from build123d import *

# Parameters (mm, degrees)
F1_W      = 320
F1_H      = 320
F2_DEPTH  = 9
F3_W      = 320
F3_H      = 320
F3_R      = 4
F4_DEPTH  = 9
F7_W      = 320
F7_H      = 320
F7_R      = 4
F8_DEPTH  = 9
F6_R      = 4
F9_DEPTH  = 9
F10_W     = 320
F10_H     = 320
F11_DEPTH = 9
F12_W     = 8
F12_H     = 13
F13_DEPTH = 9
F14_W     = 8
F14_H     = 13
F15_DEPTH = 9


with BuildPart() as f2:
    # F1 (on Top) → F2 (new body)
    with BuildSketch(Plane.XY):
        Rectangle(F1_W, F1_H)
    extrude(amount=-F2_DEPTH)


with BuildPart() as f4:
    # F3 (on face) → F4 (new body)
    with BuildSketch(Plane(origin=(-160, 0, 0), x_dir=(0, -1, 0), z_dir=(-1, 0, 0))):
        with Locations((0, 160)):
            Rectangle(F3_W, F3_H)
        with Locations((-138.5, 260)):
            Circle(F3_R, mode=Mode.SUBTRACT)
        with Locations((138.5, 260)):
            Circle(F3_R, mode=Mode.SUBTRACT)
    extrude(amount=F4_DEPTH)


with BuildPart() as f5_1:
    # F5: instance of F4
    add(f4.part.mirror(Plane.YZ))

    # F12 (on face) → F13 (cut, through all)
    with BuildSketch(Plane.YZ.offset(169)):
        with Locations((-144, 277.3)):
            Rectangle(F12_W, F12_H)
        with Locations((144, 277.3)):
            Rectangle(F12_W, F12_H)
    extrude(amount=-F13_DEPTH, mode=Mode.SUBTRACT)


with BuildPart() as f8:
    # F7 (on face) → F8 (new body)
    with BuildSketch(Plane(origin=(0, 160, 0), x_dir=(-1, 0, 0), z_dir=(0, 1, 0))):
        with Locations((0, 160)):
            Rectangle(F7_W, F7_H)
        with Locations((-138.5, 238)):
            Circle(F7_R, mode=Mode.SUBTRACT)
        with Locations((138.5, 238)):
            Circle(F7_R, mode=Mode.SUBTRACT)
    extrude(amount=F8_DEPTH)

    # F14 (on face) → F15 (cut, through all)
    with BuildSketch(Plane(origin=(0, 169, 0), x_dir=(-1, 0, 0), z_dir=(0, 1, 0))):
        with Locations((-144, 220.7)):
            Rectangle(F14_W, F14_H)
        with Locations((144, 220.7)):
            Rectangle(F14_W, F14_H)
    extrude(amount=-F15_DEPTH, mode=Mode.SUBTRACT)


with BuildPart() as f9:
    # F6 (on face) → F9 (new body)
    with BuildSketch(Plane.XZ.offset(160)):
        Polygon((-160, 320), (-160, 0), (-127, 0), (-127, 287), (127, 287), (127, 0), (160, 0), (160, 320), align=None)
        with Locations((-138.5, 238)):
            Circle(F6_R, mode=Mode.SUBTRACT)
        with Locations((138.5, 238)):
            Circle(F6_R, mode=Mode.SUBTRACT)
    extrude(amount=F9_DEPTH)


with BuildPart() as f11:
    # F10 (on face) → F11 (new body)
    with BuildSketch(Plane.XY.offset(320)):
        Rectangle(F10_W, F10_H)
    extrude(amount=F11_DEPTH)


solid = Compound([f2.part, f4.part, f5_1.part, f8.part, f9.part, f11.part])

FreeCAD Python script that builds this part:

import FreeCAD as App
import Part
import Sketcher
Q = App.Units.Quantity

doc = App.newDocument("Part")
body = doc.addObject("PartDesign::Body", "Body")

# Sketch on XY plane
sketch1 = doc.addObject("Sketcher::SketchObject", "Sketch")
body.addObject(sketch1)
sketch1.AttachmentSupport = (doc.XY_Plane, [""])
sketch1.MapMode = "FlatFace"
sketch1.addGeometry([
    Part.LineSegment(App.Vector(-160, 160, 0), App.Vector(-160, -160, 0)),
    Part.LineSegment(App.Vector(-160, -160, 0), App.Vector(160, -160, 0)),
    Part.LineSegment(App.Vector(160, -160, 0), App.Vector(160, 160, 0)),
    Part.LineSegment(App.Vector(160, 160, 0), App.Vector(-160, 160, 0)),
], False)
sketch1.addConstraint([
    Sketcher.Constraint("Coincident", 0, 2, 1, 1),
    Sketcher.Constraint("Coincident", 1, 2, 2, 1),
    Sketcher.Constraint("Coincident", 2, 2, 3, 1),
    Sketcher.Constraint("Coincident", 3, 2, 0, 1),
    Sketcher.Constraint("Vertical", 0),
    Sketcher.Constraint("Horizontal", 1),
    Sketcher.Constraint("Vertical", 2),
    Sketcher.Constraint("Horizontal", 3),
    Sketcher.Constraint("Symmetric", 0, 2, 2, 2, -1, 1),
    Sketcher.Constraint("Equal", 3, 0),
    Sketcher.Constraint("DistanceX", 1, 1, 1, 2, Q("320 mm")),
])
pad1 = doc.addObject("PartDesign::Pad", "Pad")
body.addObject(pad1)
pad1.Profile = sketch1
pad1.Length = 9
pad1.Reversed = True
body2 = doc.addObject("PartDesign::Body", "Body001")

# Sketch on YZ plane
sketch2 = doc.addObject("Sketcher::SketchObject", "Sketch001")
body2.addObject(sketch2)
sketch2.AttachmentSupport = (doc.getObject("YZ_Plane001"), [""])
sketch2.MapMode = "FlatFace"
sketch2.AttachmentOffset = App.Placement(App.Vector(0, 0, -160), App.Rotation())
sketch2.addGeometry([
    Part.LineSegment(App.Vector(160, 320, 0), App.Vector(160, 0, 0)),  # 0
    Part.LineSegment(App.Vector(160, 0, 0), App.Vector(-160, 0, 0)),  # 1
    Part.LineSegment(App.Vector(-160, 0, 0), App.Vector(-160, 320, 0)),  # 2
    Part.LineSegment(App.Vector(-160, 320, 0), App.Vector(160, 320, 0)),  # 3
    Part.Circle(App.Vector(138.5, 260, 0), App.Vector(0, 0, 1), 4),  # 4
    Part.Circle(App.Vector(-138.5, 260, 0), App.Vector(0, 0, 1), 4),  # 5
], False)
sketch2.addConstraint([
    Sketcher.Constraint("Coincident", 0, 2, 1, 1),
    Sketcher.Constraint("Coincident", 1, 2, 2, 1),
    Sketcher.Constraint("Coincident", 2, 2, 3, 1),
    Sketcher.Constraint("Coincident", 3, 2, 0, 1),
    Sketcher.Constraint("Vertical", 0),
    Sketcher.Constraint("Horizontal", 1),
    Sketcher.Constraint("Vertical", 2),
    Sketcher.Constraint("Horizontal", 3),
    Sketcher.Constraint("Equal", 4, 5),
    Sketcher.Constraint("Symmetric", 0, 2, 1, 2, -1, 1),
    Sketcher.Constraint("Symmetric", 4, 3, 5, 3, -2),
    Sketcher.Constraint("Equal", 3, 0),
    Sketcher.Constraint("Diameter", 4, Q("8 mm")),
    Sketcher.Constraint("DistanceX", 1, 2, 1, 1, Q("320 mm")),
    Sketcher.Constraint("DistanceY", -1, 1, 4, 3, Q("260 mm")),
    Sketcher.Constraint("DistanceX", 5, 3, 4, 3, Q("277 mm")),
])
pad2 = doc.addObject("PartDesign::Pad", "Pad001")
body2.addObject(pad2)
pad2.Profile = sketch2
pad2.Length = 9
pad2.Reversed = True
body3 = doc.addObject("PartDesign::Body", "Body002")
doc.recompute()

mirroring = doc.addObject("Part::Mirroring", "Mirroring")
mirroring.Source = body2
mirroring.Base = App.Vector(0, 0, 0)
mirroring.Normal = App.Vector(1, 0, 0)
body3.BaseFeature = mirroring
doc.recompute()

# Sketch on YZ plane
sketch3 = doc.addObject("Sketcher::SketchObject", "Sketch002")
body3.addObject(sketch3)
sketch3.AttachmentSupport = (doc.getObject("YZ_Plane002"), [""])
sketch3.MapMode = "FlatFace"
sketch3.AttachmentOffset = App.Placement(App.Vector(0, 0, 169), App.Rotation())
sketch3.addGeometry([
    Part.LineSegment(App.Vector(-148, 284, 0), App.Vector(-148, 271, 0)),  # 0
    Part.LineSegment(App.Vector(-148, 271, 0), App.Vector(-140, 271, 0)),  # 1
    Part.LineSegment(App.Vector(-140, 271, 0), App.Vector(-140, 284, 0)),  # 2
    Part.LineSegment(App.Vector(-140, 284, 0), App.Vector(-148, 284, 0)),  # 3
    Part.LineSegment(App.Vector(140, 284, 0), App.Vector(140, 271, 0)),  # 4
    Part.LineSegment(App.Vector(140, 271, 0), App.Vector(148, 271, 0)),  # 5
    Part.LineSegment(App.Vector(148, 271, 0), App.Vector(148, 284, 0)),  # 6
    Part.LineSegment(App.Vector(148, 284, 0), App.Vector(140, 284, 0)),  # 7
], False)
sketch3.addConstraint([
    Sketcher.Constraint("Coincident", 0, 2, 1, 1),
    Sketcher.Constraint("Coincident", 1, 2, 2, 1),
    Sketcher.Constraint("Coincident", 2, 2, 3, 1),
    Sketcher.Constraint("Coincident", 3, 2, 0, 1),
    Sketcher.Constraint("Coincident", 4, 2, 5, 1),
    Sketcher.Constraint("Coincident", 5, 2, 6, 1),
    Sketcher.Constraint("Coincident", 6, 2, 7, 1),
    Sketcher.Constraint("Coincident", 7, 2, 4, 1),
    Sketcher.Constraint("Vertical", 0),
    Sketcher.Constraint("Horizontal", 1),
    Sketcher.Constraint("Vertical", 2),
    Sketcher.Constraint("Horizontal", 3),
    Sketcher.Constraint("Vertical", 4),
    Sketcher.Constraint("Horizontal", 5),
    Sketcher.Constraint("Vertical", 6),
    Sketcher.Constraint("Horizontal", 7),
    Sketcher.Constraint("Symmetric", 1, 2, 4, 2, -2),
    Sketcher.Constraint("Symmetric", 3, 2, 6, 2, -2),
    Sketcher.Constraint("DistanceX", 1, 1, 1, 2, Q("8 mm")),
    Sketcher.Constraint("DistanceY", 0, 2, 0, 1, Q("13 mm")),
    Sketcher.Constraint("DistanceX", 0, 2, -1, 1, Q("148 mm")),
    Sketcher.Constraint("DistanceY", -1, 1, 0, 2, Q("270.8 mm")),
])
pocket1 = doc.addObject("PartDesign::Pocket", "Pocket")
body3.addObject(pocket1)
pocket1.Profile = sketch3
pocket1.Type = "ThroughAll"
body4 = doc.addObject("PartDesign::Body", "Body003")

# Sketch on XZ plane
sketch4 = doc.addObject("Sketcher::SketchObject", "Sketch003")
body4.addObject(sketch4)
sketch4.AttachmentSupport = (doc.getObject("XZ_Plane003"), [""])
sketch4.MapMode = "FlatFace"
sketch4.AttachmentOffset = App.Placement(App.Vector(0, 0, -160), App.Rotation())
sketch4.addGeometry([
    Part.LineSegment(App.Vector(160, 320, 0), App.Vector(160, 0, 0)),  # 0
    Part.LineSegment(App.Vector(160, 0, 0), App.Vector(-160, 0, 0)),  # 1
    Part.LineSegment(App.Vector(-160, 0, 0), App.Vector(-160, 320, 0)),  # 2
    Part.LineSegment(App.Vector(-160, 320, 0), App.Vector(160, 320, 0)),  # 3
    Part.Circle(App.Vector(138.5, 238, 0), App.Vector(0, 0, 1), 4),  # 4
    Part.Circle(App.Vector(-138.5, 238, 0), App.Vector(0, 0, 1), 4),  # 5
], False)
sketch4.addConstraint([
    Sketcher.Constraint("Coincident", 0, 2, 1, 1),
    Sketcher.Constraint("Coincident", 1, 2, 2, 1),
    Sketcher.Constraint("Coincident", 2, 2, 3, 1),
    Sketcher.Constraint("Coincident", 3, 2, 0, 1),
    Sketcher.Constraint("Vertical", 0),
    Sketcher.Constraint("Horizontal", 1),
    Sketcher.Constraint("Vertical", 2),
    Sketcher.Constraint("Horizontal", 3),
    Sketcher.Constraint("Equal", 4, 5),
    Sketcher.Constraint("Symmetric", 0, 2, 1, 2, -1, 1),
    Sketcher.Constraint("Symmetric", 4, 3, 5, 3, -2),
    Sketcher.Constraint("Equal", 3, 0),
    Sketcher.Constraint("Diameter", 4, Q("8 mm")),
    Sketcher.Constraint("DistanceX", 1, 2, 1, 1, Q("320 mm")),
    Sketcher.Constraint("DistanceY", -1, 1, 4, 3, Q("238 mm")),
    Sketcher.Constraint("DistanceX", 5, 3, 4, 3, Q("277 mm")),
])
pad3 = doc.addObject("PartDesign::Pad", "Pad002")
body4.addObject(pad3)
pad3.Profile = sketch4
pad3.Length = 9
pad3.Reversed = True

# Sketch on XZ plane
sketch5 = doc.addObject("Sketcher::SketchObject", "Sketch004")
body4.addObject(sketch5)
sketch5.AttachmentSupport = (doc.getObject("XZ_Plane003"), [""])
sketch5.MapMode = "FlatFace"
sketch5.AttachmentOffset = App.Placement(App.Vector(0, 0, -169), App.Rotation())
sketch5.addGeometry([
    Part.LineSegment(App.Vector(148, 227, 0), App.Vector(148, 214, 0)),  # 0
    Part.LineSegment(App.Vector(148, 214, 0), App.Vector(140, 214, 0)),  # 1
    Part.LineSegment(App.Vector(140, 214, 0), App.Vector(140, 227, 0)),  # 2
    Part.LineSegment(App.Vector(140, 227, 0), App.Vector(148, 227, 0)),  # 3
    Part.LineSegment(App.Vector(-140, 227, 0), App.Vector(-140, 214, 0)),  # 4
    Part.LineSegment(App.Vector(-140, 214, 0), App.Vector(-148, 214, 0)),  # 5
    Part.LineSegment(App.Vector(-148, 214, 0), App.Vector(-148, 227, 0)),  # 6
    Part.LineSegment(App.Vector(-148, 227, 0), App.Vector(-140, 227, 0)),  # 7
], False)
sketch5.addConstraint([
    Sketcher.Constraint("Coincident", 0, 2, 1, 1),
    Sketcher.Constraint("Coincident", 1, 2, 2, 1),
    Sketcher.Constraint("Coincident", 2, 2, 3, 1),
    Sketcher.Constraint("Coincident", 3, 2, 0, 1),
    Sketcher.Constraint("Coincident", 4, 2, 5, 1),
    Sketcher.Constraint("Coincident", 5, 2, 6, 1),
    Sketcher.Constraint("Coincident", 6, 2, 7, 1),
    Sketcher.Constraint("Coincident", 7, 2, 4, 1),
    Sketcher.Constraint("Vertical", 0),
    Sketcher.Constraint("Horizontal", 1),
    Sketcher.Constraint("Vertical", 2),
    Sketcher.Constraint("Horizontal", 3),
    Sketcher.Constraint("Vertical", 4),
    Sketcher.Constraint("Horizontal", 5),
    Sketcher.Constraint("Vertical", 6),
    Sketcher.Constraint("Horizontal", 7),
    Sketcher.Constraint("Symmetric", 1, 2, 4, 2, -2),
    Sketcher.Constraint("Symmetric", 3, 2, 6, 2, -2),
    Sketcher.Constraint("DistanceX", 1, 2, 1, 1, Q("8 mm")),
    Sketcher.Constraint("DistanceY", 0, 2, 0, 1, Q("13 mm")),
    Sketcher.Constraint("DistanceX", -1, 1, 0, 2, Q("148 mm")),
    Sketcher.Constraint("DistanceY", -1, 1, 0, 2, Q("214.2 mm")),
])
pocket2 = doc.addObject("PartDesign::Pocket", "Pocket001")
body4.addObject(pocket2)
pocket2.Profile = sketch5
pocket2.Type = "ThroughAll"
pocket2.Reversed = True
body5 = doc.addObject("PartDesign::Body", "Body004")

# Sketch on XZ plane
sketch6 = doc.addObject("Sketcher::SketchObject", "Sketch005")
body5.addObject(sketch6)
sketch6.AttachmentSupport = (doc.getObject("XZ_Plane004"), [""])
sketch6.MapMode = "FlatFace"
sketch6.AttachmentOffset = App.Placement(App.Vector(0, 0, 160), App.Rotation())
sketch6.addGeometry([
    Part.LineSegment(App.Vector(-160, 320, 0), App.Vector(-160, 0, 0)),  # 0
    Part.LineSegment(App.Vector(-160, 0, 0), App.Vector(-127, 0, 0)),  # 1
    Part.LineSegment(App.Vector(-127, 0, 0), App.Vector(-127, 287, 0)),  # 2
    Part.LineSegment(App.Vector(-127, 287, 0), App.Vector(127, 287, 0)),  # 3
    Part.LineSegment(App.Vector(127, 287, 0), App.Vector(127, 0, 0)),  # 4
    Part.LineSegment(App.Vector(127, 0, 0), App.Vector(160, 0, 0)),  # 5
    Part.LineSegment(App.Vector(160, 0, 0), App.Vector(160, 320, 0)),  # 6
    Part.LineSegment(App.Vector(160, 320, 0), App.Vector(-160, 320, 0)),  # 7
    Part.Circle(App.Vector(-138.5, 238, 0), App.Vector(0, 0, 1), 4),  # 8
    Part.Circle(App.Vector(138.5, 238, 0), App.Vector(0, 0, 1), 4),  # 9
], False)
sketch6.addConstraint([
    Sketcher.Constraint("Coincident", 0, 2, 1, 1),
    Sketcher.Constraint("Coincident", 1, 2, 2, 1),
    Sketcher.Constraint("Coincident", 2, 2, 3, 1),
    Sketcher.Constraint("Coincident", 3, 2, 4, 1),
    Sketcher.Constraint("Coincident", 4, 2, 5, 1),
    Sketcher.Constraint("Coincident", 5, 2, 6, 1),
    Sketcher.Constraint("Coincident", 6, 2, 7, 1),
    Sketcher.Constraint("Coincident", 7, 2, 0, 1),
    Sketcher.Constraint("Vertical", 0),
    Sketcher.Constraint("Horizontal", 1),
    Sketcher.Constraint("Vertical", 2),
    Sketcher.Constraint("Horizontal", 3),
    Sketcher.Constraint("Vertical", 4),
    Sketcher.Constraint("Horizontal", 5),
    Sketcher.Constraint("Vertical", 6),
    Sketcher.Constraint("Horizontal", 7),
    Sketcher.Constraint("Equal", 8, 9),
    Sketcher.Constraint("Symmetric", 1, 2, 4, 2, -1, 1),
    Sketcher.Constraint("Symmetric", 8, 3, 9, 3, -2),
    Sketcher.Constraint("Symmetric", 0, 2, 5, 2, -2),
    Sketcher.Constraint("Equal", 7, 0),
    Sketcher.Constraint("Diameter", 8, Q("8 mm")),
    Sketcher.Constraint("DistanceX", 1, 1, 1, 2, Q("33 mm")),
    Sketcher.Constraint("DistanceX", 3, 1, 3, 2, Q("254 mm")),
    Sketcher.Constraint("DistanceY", 2, 1, 2, 2, Q("287 mm")),
    Sketcher.Constraint("DistanceY", -1, 1, 8, 3, Q("238 mm")),
    Sketcher.Constraint("DistanceX", 8, 3, 9, 3, Q("277 mm")),
])
pad4 = doc.addObject("PartDesign::Pad", "Pad003")
body5.addObject(pad4)
pad4.Profile = sketch6
pad4.Length = 9
body6 = doc.addObject("PartDesign::Body", "Body005")

# Sketch on XY plane
sketch7 = doc.addObject("Sketcher::SketchObject", "Sketch006")
body6.addObject(sketch7)
sketch7.AttachmentSupport = (doc.getObject("XY_Plane005"), [""])
sketch7.MapMode = "FlatFace"
sketch7.AttachmentOffset = App.Placement(App.Vector(0, 0, 320), App.Rotation())
sketch7.addGeometry([
    Part.LineSegment(App.Vector(-160, 160, 0), App.Vector(-160, -160, 0)),
    Part.LineSegment(App.Vector(-160, -160, 0), App.Vector(160, -160, 0)),
    Part.LineSegment(App.Vector(160, -160, 0), App.Vector(160, 160, 0)),
    Part.LineSegment(App.Vector(160, 160, 0), App.Vector(-160, 160, 0)),
], False)
sketch7.addConstraint([
    Sketcher.Constraint("Coincident", 0, 2, 1, 1),
    Sketcher.Constraint("Coincident", 1, 2, 2, 1),
    Sketcher.Constraint("Coincident", 2, 2, 3, 1),
    Sketcher.Constraint("Coincident", 3, 2, 0, 1),
    Sketcher.Constraint("Vertical", 0),
    Sketcher.Constraint("Horizontal", 1),
    Sketcher.Constraint("Vertical", 2),
    Sketcher.Constraint("Horizontal", 3),
    Sketcher.Constraint("Symmetric", 0, 2, 2, 2, -1, 1),
    Sketcher.Constraint("Equal", 3, 0),
    Sketcher.Constraint("DistanceX", 1, 1, 1, 2, Q("320 mm")),
])
pad5 = doc.addObject("PartDesign::Pad", "Pad004")
body6.addObject(pad5)
pad5.Profile = sketch7
pad5.Length = 9
mirroring.Visibility = False

doc.recompute()
